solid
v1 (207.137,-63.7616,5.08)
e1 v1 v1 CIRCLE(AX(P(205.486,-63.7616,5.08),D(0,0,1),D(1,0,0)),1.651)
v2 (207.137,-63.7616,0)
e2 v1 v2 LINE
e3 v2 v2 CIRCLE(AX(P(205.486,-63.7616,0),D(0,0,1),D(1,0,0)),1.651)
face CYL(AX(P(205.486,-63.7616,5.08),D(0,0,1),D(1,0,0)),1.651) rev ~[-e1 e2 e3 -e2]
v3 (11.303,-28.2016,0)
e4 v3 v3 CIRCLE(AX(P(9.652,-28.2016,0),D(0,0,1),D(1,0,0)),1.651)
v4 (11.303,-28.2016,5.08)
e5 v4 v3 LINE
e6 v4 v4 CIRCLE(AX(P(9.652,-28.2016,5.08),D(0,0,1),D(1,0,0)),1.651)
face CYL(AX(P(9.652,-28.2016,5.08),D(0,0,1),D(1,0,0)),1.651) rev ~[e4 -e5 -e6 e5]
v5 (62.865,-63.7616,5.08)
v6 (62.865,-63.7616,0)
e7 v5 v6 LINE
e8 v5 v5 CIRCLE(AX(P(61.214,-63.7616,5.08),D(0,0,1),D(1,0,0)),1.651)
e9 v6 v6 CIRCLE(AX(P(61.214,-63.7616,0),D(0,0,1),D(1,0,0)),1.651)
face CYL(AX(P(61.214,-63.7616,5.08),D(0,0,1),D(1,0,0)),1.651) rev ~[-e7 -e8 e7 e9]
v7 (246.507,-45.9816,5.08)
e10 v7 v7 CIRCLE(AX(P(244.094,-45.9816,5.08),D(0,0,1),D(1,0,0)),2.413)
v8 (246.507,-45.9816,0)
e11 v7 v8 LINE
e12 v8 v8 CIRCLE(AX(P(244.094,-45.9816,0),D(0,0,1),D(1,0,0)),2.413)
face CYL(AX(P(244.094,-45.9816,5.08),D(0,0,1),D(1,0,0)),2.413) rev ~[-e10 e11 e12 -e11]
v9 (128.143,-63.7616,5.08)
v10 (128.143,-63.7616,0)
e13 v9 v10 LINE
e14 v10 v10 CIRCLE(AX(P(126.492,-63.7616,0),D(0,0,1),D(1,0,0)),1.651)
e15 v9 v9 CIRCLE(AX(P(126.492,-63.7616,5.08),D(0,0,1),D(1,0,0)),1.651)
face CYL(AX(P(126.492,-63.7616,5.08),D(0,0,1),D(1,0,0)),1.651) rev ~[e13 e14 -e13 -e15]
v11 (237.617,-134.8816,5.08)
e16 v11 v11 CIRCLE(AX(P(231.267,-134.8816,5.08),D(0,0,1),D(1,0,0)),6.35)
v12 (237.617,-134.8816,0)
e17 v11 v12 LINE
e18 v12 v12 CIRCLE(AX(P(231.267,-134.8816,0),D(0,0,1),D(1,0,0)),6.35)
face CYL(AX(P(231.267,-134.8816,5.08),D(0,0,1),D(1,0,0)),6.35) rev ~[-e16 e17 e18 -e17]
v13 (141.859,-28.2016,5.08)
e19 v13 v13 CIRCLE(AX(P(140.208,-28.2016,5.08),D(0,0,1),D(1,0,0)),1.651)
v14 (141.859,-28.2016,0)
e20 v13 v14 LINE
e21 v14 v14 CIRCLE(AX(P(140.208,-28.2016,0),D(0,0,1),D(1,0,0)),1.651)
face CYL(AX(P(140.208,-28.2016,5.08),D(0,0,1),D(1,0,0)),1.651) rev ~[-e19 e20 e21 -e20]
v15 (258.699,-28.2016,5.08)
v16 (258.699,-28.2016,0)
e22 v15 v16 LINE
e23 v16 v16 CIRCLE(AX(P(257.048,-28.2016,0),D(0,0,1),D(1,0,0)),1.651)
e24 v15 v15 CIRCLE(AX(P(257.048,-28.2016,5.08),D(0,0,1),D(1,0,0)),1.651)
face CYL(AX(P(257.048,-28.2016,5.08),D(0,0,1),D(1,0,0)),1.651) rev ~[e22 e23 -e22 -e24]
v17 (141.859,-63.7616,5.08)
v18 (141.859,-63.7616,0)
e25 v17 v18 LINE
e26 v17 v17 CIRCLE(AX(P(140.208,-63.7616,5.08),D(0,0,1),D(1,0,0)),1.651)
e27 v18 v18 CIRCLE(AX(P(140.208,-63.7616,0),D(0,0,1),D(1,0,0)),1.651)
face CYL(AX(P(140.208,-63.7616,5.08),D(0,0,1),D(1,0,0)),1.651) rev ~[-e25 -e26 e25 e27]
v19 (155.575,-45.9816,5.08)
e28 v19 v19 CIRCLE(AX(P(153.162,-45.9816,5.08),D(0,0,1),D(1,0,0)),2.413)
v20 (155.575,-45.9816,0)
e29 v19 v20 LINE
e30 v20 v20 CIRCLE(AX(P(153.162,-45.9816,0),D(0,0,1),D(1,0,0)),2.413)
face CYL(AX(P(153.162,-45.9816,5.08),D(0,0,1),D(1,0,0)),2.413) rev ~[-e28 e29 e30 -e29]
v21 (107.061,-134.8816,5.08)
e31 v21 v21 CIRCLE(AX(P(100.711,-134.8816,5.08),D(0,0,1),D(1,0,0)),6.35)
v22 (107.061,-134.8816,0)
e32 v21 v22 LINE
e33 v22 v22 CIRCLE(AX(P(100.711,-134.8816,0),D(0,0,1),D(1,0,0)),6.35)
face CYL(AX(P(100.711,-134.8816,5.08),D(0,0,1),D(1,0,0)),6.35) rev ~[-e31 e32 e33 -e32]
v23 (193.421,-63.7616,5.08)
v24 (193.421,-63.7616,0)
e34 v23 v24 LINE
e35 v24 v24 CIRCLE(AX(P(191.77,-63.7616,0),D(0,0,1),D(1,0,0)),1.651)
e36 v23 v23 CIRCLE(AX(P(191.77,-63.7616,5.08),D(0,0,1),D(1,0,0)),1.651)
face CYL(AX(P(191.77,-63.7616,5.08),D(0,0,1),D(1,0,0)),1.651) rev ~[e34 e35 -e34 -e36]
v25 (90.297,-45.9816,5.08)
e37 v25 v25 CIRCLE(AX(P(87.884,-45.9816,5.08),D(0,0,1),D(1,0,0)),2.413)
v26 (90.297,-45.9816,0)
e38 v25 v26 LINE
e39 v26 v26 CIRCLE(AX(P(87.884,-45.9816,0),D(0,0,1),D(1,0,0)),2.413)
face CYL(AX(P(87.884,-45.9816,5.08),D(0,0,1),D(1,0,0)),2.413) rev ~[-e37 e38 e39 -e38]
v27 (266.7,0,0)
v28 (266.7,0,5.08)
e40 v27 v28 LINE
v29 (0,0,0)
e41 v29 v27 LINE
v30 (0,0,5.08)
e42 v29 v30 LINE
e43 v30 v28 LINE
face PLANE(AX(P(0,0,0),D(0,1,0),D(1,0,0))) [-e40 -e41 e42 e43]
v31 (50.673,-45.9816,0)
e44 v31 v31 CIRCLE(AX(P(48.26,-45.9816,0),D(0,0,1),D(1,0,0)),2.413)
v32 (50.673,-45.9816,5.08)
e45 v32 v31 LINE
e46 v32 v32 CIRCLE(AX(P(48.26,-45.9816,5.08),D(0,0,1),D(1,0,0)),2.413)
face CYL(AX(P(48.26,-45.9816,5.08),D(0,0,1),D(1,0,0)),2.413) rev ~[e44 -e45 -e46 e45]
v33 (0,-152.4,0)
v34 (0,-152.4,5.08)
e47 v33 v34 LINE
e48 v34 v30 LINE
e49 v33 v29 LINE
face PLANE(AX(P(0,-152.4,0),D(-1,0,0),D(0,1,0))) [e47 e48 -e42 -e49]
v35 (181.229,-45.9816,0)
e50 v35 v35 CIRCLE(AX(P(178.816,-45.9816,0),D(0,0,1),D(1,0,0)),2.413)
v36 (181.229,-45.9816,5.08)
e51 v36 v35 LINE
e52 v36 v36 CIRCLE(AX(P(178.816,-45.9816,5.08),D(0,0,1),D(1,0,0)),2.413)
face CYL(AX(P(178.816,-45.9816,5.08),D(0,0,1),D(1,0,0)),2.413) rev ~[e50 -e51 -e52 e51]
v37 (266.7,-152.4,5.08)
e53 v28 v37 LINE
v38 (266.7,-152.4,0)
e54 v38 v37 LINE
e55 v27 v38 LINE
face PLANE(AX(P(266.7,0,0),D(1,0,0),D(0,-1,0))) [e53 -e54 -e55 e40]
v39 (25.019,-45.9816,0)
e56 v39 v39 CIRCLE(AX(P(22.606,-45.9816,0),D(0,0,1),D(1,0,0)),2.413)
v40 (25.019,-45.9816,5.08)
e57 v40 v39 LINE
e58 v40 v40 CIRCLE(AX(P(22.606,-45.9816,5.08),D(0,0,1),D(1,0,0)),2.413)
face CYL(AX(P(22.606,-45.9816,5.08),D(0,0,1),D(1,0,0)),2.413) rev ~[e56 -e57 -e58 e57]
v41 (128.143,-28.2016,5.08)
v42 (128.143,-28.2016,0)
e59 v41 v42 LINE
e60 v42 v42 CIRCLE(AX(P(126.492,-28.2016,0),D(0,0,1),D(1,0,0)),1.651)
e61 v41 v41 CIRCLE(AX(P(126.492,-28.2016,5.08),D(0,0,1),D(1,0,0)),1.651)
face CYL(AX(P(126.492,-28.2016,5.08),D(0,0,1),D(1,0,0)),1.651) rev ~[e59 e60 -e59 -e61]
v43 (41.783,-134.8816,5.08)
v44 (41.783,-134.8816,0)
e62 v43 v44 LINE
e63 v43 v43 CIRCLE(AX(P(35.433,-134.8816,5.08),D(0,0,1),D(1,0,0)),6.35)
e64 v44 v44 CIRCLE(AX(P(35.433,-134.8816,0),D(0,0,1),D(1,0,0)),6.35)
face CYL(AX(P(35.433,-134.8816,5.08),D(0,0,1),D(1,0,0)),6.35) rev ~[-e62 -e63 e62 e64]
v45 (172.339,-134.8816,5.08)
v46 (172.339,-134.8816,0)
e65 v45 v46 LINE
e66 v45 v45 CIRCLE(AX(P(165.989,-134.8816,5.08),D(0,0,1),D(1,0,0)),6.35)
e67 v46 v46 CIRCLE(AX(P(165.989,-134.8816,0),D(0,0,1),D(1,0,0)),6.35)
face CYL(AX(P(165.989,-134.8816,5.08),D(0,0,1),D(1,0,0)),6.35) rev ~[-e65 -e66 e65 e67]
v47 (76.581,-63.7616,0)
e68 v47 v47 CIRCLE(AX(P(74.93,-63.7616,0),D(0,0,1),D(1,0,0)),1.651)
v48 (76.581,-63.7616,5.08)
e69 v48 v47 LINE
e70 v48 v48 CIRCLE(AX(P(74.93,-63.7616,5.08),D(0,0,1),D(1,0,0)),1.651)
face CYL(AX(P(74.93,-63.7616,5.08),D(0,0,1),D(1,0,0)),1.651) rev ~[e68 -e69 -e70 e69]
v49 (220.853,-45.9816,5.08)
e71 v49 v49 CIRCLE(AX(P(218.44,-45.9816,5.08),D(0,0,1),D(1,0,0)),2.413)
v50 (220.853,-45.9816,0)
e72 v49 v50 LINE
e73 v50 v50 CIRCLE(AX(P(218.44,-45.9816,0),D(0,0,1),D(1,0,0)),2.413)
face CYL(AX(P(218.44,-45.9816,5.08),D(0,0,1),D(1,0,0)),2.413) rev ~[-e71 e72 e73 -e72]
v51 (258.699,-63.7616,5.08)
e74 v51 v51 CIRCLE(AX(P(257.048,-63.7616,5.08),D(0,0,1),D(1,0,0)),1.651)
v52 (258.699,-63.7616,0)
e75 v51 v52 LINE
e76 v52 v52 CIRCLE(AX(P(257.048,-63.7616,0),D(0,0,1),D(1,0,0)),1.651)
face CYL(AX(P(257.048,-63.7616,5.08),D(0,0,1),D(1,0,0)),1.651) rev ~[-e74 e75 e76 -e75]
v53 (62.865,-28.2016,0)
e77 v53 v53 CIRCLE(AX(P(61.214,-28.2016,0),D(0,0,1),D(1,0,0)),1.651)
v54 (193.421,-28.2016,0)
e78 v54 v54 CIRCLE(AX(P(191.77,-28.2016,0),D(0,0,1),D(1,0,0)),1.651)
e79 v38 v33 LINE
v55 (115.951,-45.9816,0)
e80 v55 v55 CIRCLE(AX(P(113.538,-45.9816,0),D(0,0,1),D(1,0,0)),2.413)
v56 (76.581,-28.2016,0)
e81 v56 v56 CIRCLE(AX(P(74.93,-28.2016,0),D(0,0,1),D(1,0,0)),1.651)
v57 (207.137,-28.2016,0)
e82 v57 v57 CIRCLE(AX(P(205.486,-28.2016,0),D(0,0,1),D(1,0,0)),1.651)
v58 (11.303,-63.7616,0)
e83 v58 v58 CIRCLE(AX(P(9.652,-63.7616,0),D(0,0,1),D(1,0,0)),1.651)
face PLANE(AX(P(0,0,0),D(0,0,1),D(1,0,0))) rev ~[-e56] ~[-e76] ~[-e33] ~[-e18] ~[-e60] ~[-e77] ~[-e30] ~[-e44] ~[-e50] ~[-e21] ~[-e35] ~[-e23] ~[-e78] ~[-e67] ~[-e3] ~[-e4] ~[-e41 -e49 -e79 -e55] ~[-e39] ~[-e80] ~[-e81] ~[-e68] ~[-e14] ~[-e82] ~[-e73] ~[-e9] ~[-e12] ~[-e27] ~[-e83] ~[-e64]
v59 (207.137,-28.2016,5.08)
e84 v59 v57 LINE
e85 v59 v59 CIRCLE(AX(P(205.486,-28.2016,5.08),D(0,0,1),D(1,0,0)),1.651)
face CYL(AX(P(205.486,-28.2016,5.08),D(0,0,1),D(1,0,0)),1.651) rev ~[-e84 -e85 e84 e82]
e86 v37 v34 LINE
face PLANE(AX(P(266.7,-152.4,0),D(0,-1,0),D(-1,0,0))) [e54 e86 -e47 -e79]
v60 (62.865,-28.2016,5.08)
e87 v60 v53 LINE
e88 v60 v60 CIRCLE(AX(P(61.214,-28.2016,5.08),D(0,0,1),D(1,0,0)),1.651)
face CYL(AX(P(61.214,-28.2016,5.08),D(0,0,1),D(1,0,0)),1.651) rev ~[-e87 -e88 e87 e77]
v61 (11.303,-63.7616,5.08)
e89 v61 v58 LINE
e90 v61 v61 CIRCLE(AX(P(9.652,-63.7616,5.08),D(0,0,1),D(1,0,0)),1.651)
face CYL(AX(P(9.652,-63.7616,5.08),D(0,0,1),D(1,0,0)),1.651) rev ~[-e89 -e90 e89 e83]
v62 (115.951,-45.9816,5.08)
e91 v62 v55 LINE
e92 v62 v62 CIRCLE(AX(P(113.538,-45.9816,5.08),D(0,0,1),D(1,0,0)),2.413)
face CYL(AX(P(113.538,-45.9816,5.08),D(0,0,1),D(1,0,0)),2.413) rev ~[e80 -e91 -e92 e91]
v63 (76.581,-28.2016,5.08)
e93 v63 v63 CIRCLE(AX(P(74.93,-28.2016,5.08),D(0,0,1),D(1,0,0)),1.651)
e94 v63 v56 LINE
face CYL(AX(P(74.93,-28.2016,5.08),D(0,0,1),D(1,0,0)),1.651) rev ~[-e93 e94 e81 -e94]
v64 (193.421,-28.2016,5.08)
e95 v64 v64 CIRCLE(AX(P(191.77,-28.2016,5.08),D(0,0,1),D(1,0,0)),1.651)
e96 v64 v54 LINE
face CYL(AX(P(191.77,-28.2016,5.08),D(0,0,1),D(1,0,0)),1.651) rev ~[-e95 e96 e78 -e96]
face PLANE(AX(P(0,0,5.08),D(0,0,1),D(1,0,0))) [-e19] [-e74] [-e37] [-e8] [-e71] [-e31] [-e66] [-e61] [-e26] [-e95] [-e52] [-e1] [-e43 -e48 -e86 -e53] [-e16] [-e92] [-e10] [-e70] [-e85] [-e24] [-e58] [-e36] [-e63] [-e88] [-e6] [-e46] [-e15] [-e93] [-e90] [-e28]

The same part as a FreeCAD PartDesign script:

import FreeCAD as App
import Part
import Sketcher
from FreeCAD import Vector
Q = App.Units.Quantity

doc = App.newDocument("Part")
body = doc.addObject("PartDesign::Body", "Body")

sketch1 = body.newObject("Sketcher::SketchObject", "Sketch")
sketch1.AttachmentSupport = (doc.getObject("XY_Plane"), [""])
sketch1.MapMode = "FlatFace"
sketch1.addGeometry(Part.LineSegment(Vector(267, 0, 0), Vector(0, 0, 0)), False)
sketch1.addGeometry(Part.LineSegment(Vector(0, 0, 0), Vector(0, -152, 0)), False)
sketch1.addGeometry(Part.LineSegment(Vector(0, -152, 0), Vector(267, -152, 0)), False)
sketch1.addGeometry(Part.LineSegment(Vector(267, -152, 0), Vector(267, 0, 0)), False)
sketch1.addConstraint(Sketcher.Constraint("Coincident", 0, 2, 1, 1))
sketch1.addConstraint(Sketcher.Constraint("Coincident", 1, 2, 2, 1))
sketch1.addConstraint(Sketcher.Constraint("Coincident", 2, 2, 3, 1))
sketch1.addConstraint(Sketcher.Constraint("Coincident", 3, 2, 0, 1))
sketch1.addConstraint(Sketcher.Constraint("Horizontal", 0))
sketch1.addConstraint(Sketcher.Constraint("Vertical", 1))
sketch1.addConstraint(Sketcher.Constraint("Horizontal", 2))
sketch1.addConstraint(Sketcher.Constraint("Vertical", 3))
sketch1.addConstraint(Sketcher.Constraint("Coincident", 0, 2, -1, 1))
sketch1.addConstraint(Sketcher.Constraint("DistanceY", 1, 2, 1, 1, Q("6 in")))
sketch1.addConstraint(Sketcher.Constraint("DistanceX", 0, 2, 0, 1, Q("10.5 in")))
pad1 = body.newObject("PartDesign::Pad", "Pad")
pad1.Profile = sketch1
pad1.Length = Q("0.2 in")

sketch2 = body.newObject("Sketcher::SketchObject", "Sketch001")
sketch2.AttachmentSupport = (doc.getObject("XY_Plane"), [""])
sketch2.MapMode = "FlatFace"
sketch2.AttachmentOffset = App.Placement(Vector(0, 0, 0.2 * 25.4), App.Rotation())
sketch2.addGeometry(Part.Circle(Vector(126.5, -28.2, 0), Vector(0, 0, 1), 1.7), False)
sketch2.addGeometry(Part.Circle(Vector(140.2, -28.2, 0), Vector(0, 0, 1), 1.7), False)
sketch2.addGeometry(Part.Circle(Vector(191.8, -28.2, 0), Vector(0, 0, 1), 1.7), False)
sketch2.addGeometry(Part.Circle(Vector(74.9, -28.2, 0), Vector(0, 0, 1), 1.7), False)
sketch2.addGeometry(Part.Circle(Vector(205.5, -28.2, 0), Vector(0, 0, 1), 1.7), False)
sketch2.addGeometry(Part.Circle(Vector(61.2, -28.2, 0), Vector(0, 0, 1), 1.7), False)
sketch2.addGeometry(Part.Circle(Vector(257, -28.2, 0), Vector(0, 0, 1), 1.7), False)
sketch2.addGeometry(Part.Circle(Vector(9.7, -28.2, 0), Vector(0, 0, 1), 1.7), False)
sketch2.addGeometry(Part.Circle(Vector(140.2, -63.8, 0), Vector(0, 0, 1), 1.7), False)
sketch2.addGeometry(Part.Circle(Vector(126.5, -63.8, 0), Vector(0, 0, 1), 1.7), False)
sketch2.addGeometry(Part.Circle(Vector(191.8, -63.8, 0), Vector(0, 0, 1), 1.7), False)
sketch2.addGeometry(Part.Circle(Vector(74.9, -63.8, 0), Vector(0, 0, 1), 1.7), False)
sketch2.addGeometry(Part.Circle(Vector(205.5, -63.8, 0), Vector(0, 0, 1), 1.7), False)
sketch2.addGeometry(Part.Circle(Vector(61.2, -63.8, 0), Vector(0, 0, 1), 1.7), False)
sketch2.addGeometry(Part.Circle(Vector(257, -63.8, 0), Vector(0, 0, 1), 1.7), False)
sketch2.addGeometry(Part.Circle(Vector(9.7, -63.8, 0), Vector(0, 0, 1), 1.7), False)
sketch2.addGeometry(Part.Circle(Vector(153.2, -46, 0), Vector(0, 0, 1), 2.4), False)
sketch2.addGeometry(Part.Circle(Vector(113.5, -46, 0), Vector(0, 0, 1), 2.4), False)
sketch2.addGeometry(Part.Circle(Vector(178.8, -46, 0), Vector(0, 0, 1), 2.4), False)
sketch2.addGeometry(Part.Circle(Vector(87.9, -46, 0), Vector(0, 0, 1), 2.4), False)
sketch2.addGeometry(Part.Circle(Vector(218.4, -46, 0), Vector(0, 0, 1), 2.4), False)
sketch2.addGeometry(Part.Circle(Vector(48.3, -46, 0), Vector(0, 0, 1), 2.4), False)
sketch2.addGeometry(Part.Circle(Vector(244.1, -46, 0), Vector(0, 0, 1), 2.4), False)
sketch2.addGeometry(Part.Circle(Vector(22.6, -46, 0), Vector(0, 0, 1), 2.4), False)
sketch2.addConstraint(Sketcher.Constraint("Equal", 0, 1))
sketch2.addConstraint(Sketcher.Constraint("Equal", 1, 2))
sketch2.addConstraint(Sketcher.Constraint("Equal", 2, 3))
sketch2.addConstraint(Sketcher.Constraint("Equal", 3, 4))
sketch2.addConstraint(Sketcher.Constraint("Equal", 4, 5))
sketch2.addConstraint(Sketcher.Constraint("Equal", 5, 6))
sketch2.addConstraint(Sketcher.Constraint("Equal", 6, 7))
sketch2.addConstraint(Sketcher.Constraint("Equal", 7, 8))
sketch2.addConstraint(Sketcher.Constraint("Equal", 8, 9))
sketch2.addConstraint(Sketcher.Constraint("Equal", 9, 10))
sketch2.addConstraint(Sketcher.Constraint("Equal", 10, 11))
sketch2.addConstraint(Sketcher.Constraint("Equal", 11, 12))
sketch2.addConstraint(Sketcher.Constraint("Equal", 12, 13))
sketch2.addConstraint(Sketcher.Constraint("Equal", 13, 14))
sketch2.addConstraint(Sketcher.Constraint("Equal", 14, 15))
sketch2.addConstraint(Sketcher.Constraint("Equal", 16, 17))
sketch2.addConstraint(Sketcher.Constraint("Equal", 17, 18))
sketch2.addConstraint(Sketcher.Constraint("Equal", 18, 19))
sketch2.addConstraint(Sketcher.Constraint("Equal", 19, 20))
sketch2.addConstraint(Sketcher.Constraint("Equal", 20, 21))
sketch2.addConstraint(Sketcher.Constraint("Equal", 21, 22))
sketch2.addConstraint(Sketcher.Constraint("Equal", 22, 23))
sketch2.addConstraint(Sketcher.Constraint("Horizontal", 0, 3, 1, 3))
sketch2.addConstraint(Sketcher.Constraint("Horizontal", 1, 3, 2, 3))
sketch2.addConstraint(Sketcher.Constraint("Horizontal", 2, 3, 3, 3))
sketch2.addConstraint(Sketcher.Constraint("Horizontal", 3, 3, 4, 3))
sketch2.addConstraint(Sketcher.Constraint("Horizontal", 4, 3, 5, 3))
sketch2.addConstraint(Sketcher.Constraint("Horizontal", 5, 3, 6, 3))
sketch2.addConstraint(Sketcher.Constraint("Horizontal", 6, 3, 7, 3))
sketch2.addConstraint(Sketcher.Constraint("Horizontal", 8, 3, 9, 3))
sketch2.addConstraint(Sketcher.Constraint("Horizontal", 9, 3, 10, 3))
sketch2.addConstraint(Sketcher.Constraint("Horizontal", 10, 3, 11, 3))
sketch2.addConstraint(Sketcher.Constraint("Horizontal", 11, 3, 12, 3))
sketch2.addConstraint(Sketcher.Constraint("Horizontal", 12, 3, 13, 3))
sketch2.addConstraint(Sketcher.Constraint("Horizontal", 13, 3, 14, 3))
sketch2.addConstraint(Sketcher.Constraint("Horizontal", 14, 3, 15, 3))
sketch2.addConstraint(Sketcher.Constraint("Horizontal", 16, 3, 17, 3))
sketch2.addConstraint(Sketcher.Constraint("Horizontal", 17, 3, 18, 3))
sketch2.addConstraint(Sketcher.Constraint("Horizontal", 18, 3, 19, 3))
sketch2.addConstraint(Sketcher.Constraint("Horizontal", 19, 3, 20, 3))
sketch2.addConstraint(Sketcher.Constraint("Horizontal", 20, 3, 21, 3))
sketch2.addConstraint(Sketcher.Constraint("Horizontal", 21, 3, 22, 3))
sketch2.addConstraint(Sketcher.Constraint("Horizontal", 22, 3, 23, 3))
sketch2.addConstraint(Sketcher.Constraint("Vertical", 1, 3, 8, 3))
sketch2.addConstraint(Sketcher.Constraint("Vertical", 0, 3, 9, 3))
sketch2.addConstraint(Sketcher.Constraint("Vertical", 2, 3, 10, 3))
sketch2.addConstraint(Sketcher.Constraint("Vertical", 3, 3, 11, 3))
sketch2.addConstraint(Sketcher.Constraint("Vertical", 4, 3, 12, 3))
sketch2.addConstraint(Sketcher.Constraint("Vertical", 5, 3, 13, 3))
sketch2.addConstraint(Sketcher.Constraint("Vertical", 6, 3, 14, 3))
sketch2.addConstraint(Sketcher.Constraint("Vertical", 7, 3, 15, 3))
sketch2.addConstraint(Sketcher.Constraint("Diameter", 0, Q("0.13 in")))
sketch2.addConstraint(Sketcher.Constraint("Diameter", 16, Q("0.19 in")))
sketch2.addConstraint(Sketcher.Constraint("DistanceX", -1, 1, 20, 3, Q("8.6 in")))
sketch2.addConstraint(Sketcher.Constraint("DistanceX", -1, 1, 21, 3, Q("1.9 in")))
sketch2.addConstraint(Sketcher.Constraint("DistanceX", 3, 3, 2, 3, Q("4.6 in")))
sketch2.addConstraint(Sketcher.Constraint("DistanceX", 1, 3, 6, 3, Q("4.6 in")))
sketch2.addConstraint(Sketcher.Constraint("DistanceX", 7, 3, 0, 3, Q("4.6 in")))
sketch2.addConstraint(Sketcher.Constraint("DistanceY", 8, 3, 1, 3, Q("1.4 in")))
sketch2.addConstraint(Sketcher.Constraint("DistanceY", 16, 3, 1, 3, Q("0.7 in")))
sketch2.addConstraint(Sketcher.Constraint("DistanceX", -1, 1, 0, 3, Q("4.98 in")))
sketch2.addConstraint(Sketcher.Constraint("DistanceX", -1, 1, 1, 3, Q("5.52 in")))
sketch2.addConstraint(Sketcher.Constraint("DistanceX", -1, 1, 2, 3, Q("7.55 in")))
sketch2.addConstraint(Sketcher.Constraint("DistanceX", -1, 1, 4, 3, Q("8.09 in")))
sketch2.addConstraint(Sketcher.Constraint("DistanceX", -1, 1, 5, 3, Q("2.41 in")))
sketch2.addConstraint(Sketcher.Constraint("DistanceX", -1, 1, 16, 3, Q("6.03 in")))
sketch2.addConstraint(Sketcher.Constraint("DistanceX", -1, 1, 17, 3, Q("4.47 in")))
sketch2.addConstraint(Sketcher.Constraint("DistanceX", -1, 1, 18, 3, Q("7.04 in")))
sketch2.addConstraint(Sketcher.Constraint("DistanceX", -1, 1, 19, 3, Q("3.46 in")))
sketch2.addConstraint(Sketcher.Constraint("DistanceX", -1, 1, 22, 3, Q("9.61 in")))
sketch2.addConstraint(Sketcher.Constraint("DistanceX", -1, 1, 23, 3, Q("0.89 in")))
sketch2.addConstraint(Sketcher.Constraint("DistanceY", 0, 3, -1, 1, Q("1.1103 in")))
pocket1 = body.newObject("PartDesign::Pocket", "Pocket")
pocket1.Profile = sketch2
pocket1.Length = Q("1 in")

sketch3 = body.newObject("Sketcher::SketchObject", "Sketch002")
sketch3.AttachmentSupport = (doc.getObject("XY_Plane"), [""])
sketch3.MapMode = "FlatFace"
sketch3.AttachmentOffset = App.Placement(Vector(0, 0, 0.2 * 25.4), App.Rotation())
sketch3.addGeometry(Part.Circle(Vector(35, -135, 0), Vector(0, 0, 1), 6), False)
sketch3.addGeometry(Part.Circle(Vector(101, -135, 0), Vector(0, 0, 1), 6), False)
sketch3.addGeometry(Part.Circle(Vector(231, -135, 0), Vector(0, 0, 1), 6), False)
sketch3.addGeometry(Part.Circle(Vector(166, -135, 0), Vector(0, 0, 1), 6), False)
sketch3.addConstraint(Sketcher.Constraint("Equal", 0, 1))
sketch3.addConstraint(Sketcher.Constraint("Equal", 1, 2))
sketch3.addConstraint(Sketcher.Constraint("Equal", 2, 3))
sketch3.addConstraint(Sketcher.Constraint("Horizontal", 0, 3, 1, 3))
sketch3.addConstraint(Sketcher.Constraint("Horizontal", 1, 3, 2, 3))
sketch3.addConstraint(Sketcher.Constraint("Horizontal", 2, 3, 3, 3))
sketch3.addConstraint(Sketcher.Constraint("Diameter", 0, Q("0.5 in")))
sketch3.addConstraint(Sketcher.Constraint("DistanceX", 0, 3, 1, 3, Q("2.57 in")))
sketch3.addConstraint(Sketcher.Constraint("DistanceX", 1, 3, 2, 3, Q("5.14 in")))
sketch3.addConstraint(Sketcher.Constraint("DistanceX", 3, 3, 2, 3, Q("2.57 in")))
sketch3.addConstraint(Sketcher.Constraint("DistanceX", -1, 1, 0, 3, Q("1.395 in")))
sketch3.addConstraint(Sketcher.Constraint("DistanceY", 0, 3, -1, 1, Q("5.3103 in")))
pocket2 = body.newObject("PartDesign::Pocket", "Pocket001")
pocket2.Profile = sketch3
pocket2.Length = Q("1 in")

doc.recompute()
